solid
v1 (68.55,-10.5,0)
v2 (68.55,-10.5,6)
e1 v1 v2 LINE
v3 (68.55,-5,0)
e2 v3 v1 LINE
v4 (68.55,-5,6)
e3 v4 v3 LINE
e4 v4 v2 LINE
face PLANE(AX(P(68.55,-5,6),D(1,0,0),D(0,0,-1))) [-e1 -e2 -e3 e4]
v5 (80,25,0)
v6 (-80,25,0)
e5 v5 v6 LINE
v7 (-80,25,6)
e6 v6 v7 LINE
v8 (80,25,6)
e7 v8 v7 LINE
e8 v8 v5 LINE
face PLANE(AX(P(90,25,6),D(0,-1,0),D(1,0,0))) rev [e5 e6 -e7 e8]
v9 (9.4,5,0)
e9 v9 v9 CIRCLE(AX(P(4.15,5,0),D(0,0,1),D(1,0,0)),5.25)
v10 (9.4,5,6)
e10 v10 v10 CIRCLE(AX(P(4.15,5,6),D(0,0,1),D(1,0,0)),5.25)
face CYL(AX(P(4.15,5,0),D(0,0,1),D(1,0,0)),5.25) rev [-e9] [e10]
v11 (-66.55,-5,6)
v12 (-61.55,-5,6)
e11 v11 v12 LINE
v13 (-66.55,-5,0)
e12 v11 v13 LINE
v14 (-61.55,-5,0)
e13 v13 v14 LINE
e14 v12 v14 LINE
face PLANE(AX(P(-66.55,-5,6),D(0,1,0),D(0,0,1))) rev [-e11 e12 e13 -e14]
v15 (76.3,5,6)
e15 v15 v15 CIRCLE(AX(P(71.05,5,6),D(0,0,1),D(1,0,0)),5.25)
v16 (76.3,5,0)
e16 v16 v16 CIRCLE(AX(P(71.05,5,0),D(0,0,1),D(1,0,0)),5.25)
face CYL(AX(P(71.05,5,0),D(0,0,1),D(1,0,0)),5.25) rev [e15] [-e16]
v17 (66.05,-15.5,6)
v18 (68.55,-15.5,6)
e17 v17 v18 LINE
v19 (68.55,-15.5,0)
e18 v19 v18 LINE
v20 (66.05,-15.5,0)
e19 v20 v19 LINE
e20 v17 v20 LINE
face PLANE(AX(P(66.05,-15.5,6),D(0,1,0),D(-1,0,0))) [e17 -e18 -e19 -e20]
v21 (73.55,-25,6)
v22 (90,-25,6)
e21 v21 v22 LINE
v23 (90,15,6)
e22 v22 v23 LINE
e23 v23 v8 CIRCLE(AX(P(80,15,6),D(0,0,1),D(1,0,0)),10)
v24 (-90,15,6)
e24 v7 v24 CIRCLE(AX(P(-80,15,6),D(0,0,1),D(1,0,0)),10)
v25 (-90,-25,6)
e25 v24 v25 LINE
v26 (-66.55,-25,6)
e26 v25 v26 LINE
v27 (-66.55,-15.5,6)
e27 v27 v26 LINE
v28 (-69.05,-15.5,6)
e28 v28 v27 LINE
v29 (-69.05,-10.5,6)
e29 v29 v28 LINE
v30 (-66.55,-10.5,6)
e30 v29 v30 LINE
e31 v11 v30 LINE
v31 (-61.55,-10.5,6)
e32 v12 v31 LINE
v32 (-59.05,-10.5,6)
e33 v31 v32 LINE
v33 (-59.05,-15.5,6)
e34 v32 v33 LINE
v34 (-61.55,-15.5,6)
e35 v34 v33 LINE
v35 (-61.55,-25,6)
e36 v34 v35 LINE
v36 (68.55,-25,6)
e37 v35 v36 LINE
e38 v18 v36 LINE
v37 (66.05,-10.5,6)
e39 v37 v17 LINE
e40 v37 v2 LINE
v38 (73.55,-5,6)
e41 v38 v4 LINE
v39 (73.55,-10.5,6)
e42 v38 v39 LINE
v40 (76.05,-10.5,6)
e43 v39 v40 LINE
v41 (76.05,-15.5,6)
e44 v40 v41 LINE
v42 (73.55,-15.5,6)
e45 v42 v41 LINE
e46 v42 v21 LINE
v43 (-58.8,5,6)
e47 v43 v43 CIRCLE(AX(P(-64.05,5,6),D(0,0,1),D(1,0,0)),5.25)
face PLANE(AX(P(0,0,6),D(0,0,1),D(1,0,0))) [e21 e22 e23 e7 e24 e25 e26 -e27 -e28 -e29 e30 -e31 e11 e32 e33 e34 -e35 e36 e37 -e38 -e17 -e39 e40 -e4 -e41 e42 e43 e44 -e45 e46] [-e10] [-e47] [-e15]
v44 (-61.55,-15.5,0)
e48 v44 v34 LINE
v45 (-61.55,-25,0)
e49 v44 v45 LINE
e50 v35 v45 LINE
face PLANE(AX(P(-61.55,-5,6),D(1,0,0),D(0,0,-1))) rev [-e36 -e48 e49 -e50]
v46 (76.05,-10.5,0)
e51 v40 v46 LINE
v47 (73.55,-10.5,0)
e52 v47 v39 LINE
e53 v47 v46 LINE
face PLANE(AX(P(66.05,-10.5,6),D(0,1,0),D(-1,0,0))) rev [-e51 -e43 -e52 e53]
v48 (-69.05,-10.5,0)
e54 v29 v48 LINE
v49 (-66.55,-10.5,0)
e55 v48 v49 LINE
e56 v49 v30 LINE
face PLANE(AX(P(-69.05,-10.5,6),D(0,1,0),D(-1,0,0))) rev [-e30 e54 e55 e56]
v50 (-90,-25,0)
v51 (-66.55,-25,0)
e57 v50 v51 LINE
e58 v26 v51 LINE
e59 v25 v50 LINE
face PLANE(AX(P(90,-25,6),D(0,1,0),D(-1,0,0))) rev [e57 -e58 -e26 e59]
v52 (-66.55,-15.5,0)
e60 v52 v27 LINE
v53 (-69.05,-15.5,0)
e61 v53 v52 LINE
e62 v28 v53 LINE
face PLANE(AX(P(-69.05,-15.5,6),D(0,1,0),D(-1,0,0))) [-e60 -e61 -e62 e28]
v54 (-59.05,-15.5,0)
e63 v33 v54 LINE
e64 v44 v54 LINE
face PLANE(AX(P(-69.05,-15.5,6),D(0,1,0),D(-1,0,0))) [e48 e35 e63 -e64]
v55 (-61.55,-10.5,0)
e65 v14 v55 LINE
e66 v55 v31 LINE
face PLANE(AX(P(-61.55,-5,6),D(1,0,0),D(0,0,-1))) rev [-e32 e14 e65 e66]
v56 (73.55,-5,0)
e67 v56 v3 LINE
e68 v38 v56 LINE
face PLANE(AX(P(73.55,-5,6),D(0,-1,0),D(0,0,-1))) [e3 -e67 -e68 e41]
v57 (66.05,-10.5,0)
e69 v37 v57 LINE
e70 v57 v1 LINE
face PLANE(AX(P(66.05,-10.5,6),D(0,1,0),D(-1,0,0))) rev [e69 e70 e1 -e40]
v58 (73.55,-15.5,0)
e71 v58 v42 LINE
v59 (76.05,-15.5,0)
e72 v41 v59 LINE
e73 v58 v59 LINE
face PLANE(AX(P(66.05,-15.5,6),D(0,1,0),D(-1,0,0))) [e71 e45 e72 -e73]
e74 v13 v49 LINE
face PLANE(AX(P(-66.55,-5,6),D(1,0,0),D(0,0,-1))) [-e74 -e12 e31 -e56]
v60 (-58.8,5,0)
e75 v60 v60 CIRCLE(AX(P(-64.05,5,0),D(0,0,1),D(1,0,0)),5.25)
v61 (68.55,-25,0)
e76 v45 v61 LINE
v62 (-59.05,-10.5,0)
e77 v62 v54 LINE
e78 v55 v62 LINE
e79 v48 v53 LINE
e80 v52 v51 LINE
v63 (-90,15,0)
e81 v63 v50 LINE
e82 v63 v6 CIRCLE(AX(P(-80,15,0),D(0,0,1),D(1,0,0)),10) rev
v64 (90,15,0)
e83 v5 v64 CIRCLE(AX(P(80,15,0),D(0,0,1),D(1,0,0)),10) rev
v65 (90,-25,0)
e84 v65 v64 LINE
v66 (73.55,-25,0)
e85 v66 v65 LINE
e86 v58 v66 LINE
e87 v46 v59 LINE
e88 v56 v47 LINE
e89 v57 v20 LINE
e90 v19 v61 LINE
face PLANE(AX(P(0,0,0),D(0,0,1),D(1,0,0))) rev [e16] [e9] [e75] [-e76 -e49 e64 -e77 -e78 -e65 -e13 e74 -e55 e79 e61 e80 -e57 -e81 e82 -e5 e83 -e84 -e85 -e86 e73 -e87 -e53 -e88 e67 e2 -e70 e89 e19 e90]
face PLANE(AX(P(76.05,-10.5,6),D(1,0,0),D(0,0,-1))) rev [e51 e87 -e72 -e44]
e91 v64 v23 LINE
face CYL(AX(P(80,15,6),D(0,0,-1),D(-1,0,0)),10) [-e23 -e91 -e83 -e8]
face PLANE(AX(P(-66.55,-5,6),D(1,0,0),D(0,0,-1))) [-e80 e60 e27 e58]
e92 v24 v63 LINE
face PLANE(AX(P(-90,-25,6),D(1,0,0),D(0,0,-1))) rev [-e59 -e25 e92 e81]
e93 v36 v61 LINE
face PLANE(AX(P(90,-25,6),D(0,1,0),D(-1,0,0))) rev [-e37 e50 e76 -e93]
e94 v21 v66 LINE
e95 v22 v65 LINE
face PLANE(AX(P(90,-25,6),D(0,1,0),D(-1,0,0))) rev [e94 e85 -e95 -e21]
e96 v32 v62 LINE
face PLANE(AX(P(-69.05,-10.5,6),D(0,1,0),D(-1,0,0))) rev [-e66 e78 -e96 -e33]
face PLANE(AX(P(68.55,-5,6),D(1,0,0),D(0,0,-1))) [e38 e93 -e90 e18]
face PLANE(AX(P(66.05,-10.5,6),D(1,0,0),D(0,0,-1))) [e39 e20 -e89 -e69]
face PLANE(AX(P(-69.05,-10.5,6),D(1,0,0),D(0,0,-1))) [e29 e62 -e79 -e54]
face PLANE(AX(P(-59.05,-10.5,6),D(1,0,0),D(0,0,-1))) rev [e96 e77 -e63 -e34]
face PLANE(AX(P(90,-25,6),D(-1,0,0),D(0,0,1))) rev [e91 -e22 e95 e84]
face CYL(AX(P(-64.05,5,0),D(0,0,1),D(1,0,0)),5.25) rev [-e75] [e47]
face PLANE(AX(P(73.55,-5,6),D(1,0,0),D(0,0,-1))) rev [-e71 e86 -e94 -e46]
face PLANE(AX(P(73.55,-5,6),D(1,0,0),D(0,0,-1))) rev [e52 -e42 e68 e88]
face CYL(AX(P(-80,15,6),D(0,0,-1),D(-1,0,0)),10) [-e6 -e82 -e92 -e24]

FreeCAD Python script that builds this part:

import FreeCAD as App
import Part
import Sketcher

V = App.Vector
Q = App.Units.Quantity


def edges_at(feature, points):
    """Names of the edges that pass closest to the given points."""
    edges = feature.Shape.Edges
    near = lambda p: min(range(len(edges)), key=lambda i: edges[i].distToShape(Part.Vertex(*p))[0])
    return sorted({f"Edge{near(p) + 1}" for p in points})

doc = App.newDocument("Part")
body = doc.addObject("PartDesign::Body", "Body")

# Sketch on XY plane
sketch1 = body.newObject("Sketcher::SketchObject", "Sketch")
sketch1.AttachmentSupport = (doc.getObject("XY_Plane"), [""])
sketch1.MapMode = "FlatFace"
sketch1.addGeometry(Part.LineSegment(V(-90, 25, 0), V(-90, -25, 0)), False)
sketch1.addGeometry(Part.LineSegment(V(-90, -25, 0), V(90, -25, 0)), False)
sketch1.addGeometry(Part.LineSegment(V(90, -25, 0), V(90, 25, 0)), False)
sketch1.addGeometry(Part.LineSegment(V(90, 25, 0), V(-90, 25, 0)), False)
sketch1.addConstraint(Sketcher.Constraint("Coincident", 0, 2, 1, 1))
sketch1.addConstraint(Sketcher.Constraint("Coincident", 1, 2, 2, 1))
sketch1.addConstraint(Sketcher.Constraint("Coincident", 2, 2, 3, 1))
sketch1.addConstraint(Sketcher.Constraint("Coincident", 3, 2, 0, 1))
sketch1.addConstraint(Sketcher.Constraint("Vertical", 0))
sketch1.addConstraint(Sketcher.Constraint("Horizontal", 1))
sketch1.addConstraint(Sketcher.Constraint("Vertical", 2))
sketch1.addConstraint(Sketcher.Constraint("Horizontal", 3))
sketch1.addConstraint(Sketcher.Constraint("Symmetric", 0, 2, 2, 2, -1, 1))
sketch1.addConstraint(Sketcher.Constraint("DistanceX", 1, 1, 1, 2, Q("180 mm")))
sketch1.addConstraint(Sketcher.Constraint("DistanceY", 0, 2, 0, 1, Q("50 mm")))
pad1 = body.newObject("PartDesign::Pad", "Pad")
pad1.Profile = sketch1
pad1.Length = 6

# Sketch on XY plane
sketch2 = body.newObject("Sketcher::SketchObject", "Sketch001")
sketch2.AttachmentSupport = (doc.getObject("XY_Plane"), [""])
sketch2.MapMode = "FlatFace"
sketch2.AttachmentOffset = App.Placement(V(0, 0, 6), App.Rotation())
sketch2.addGeometry(Part.Circle(V(-64, 5, 0), V(0, 0, 1), 5), False)
sketch2.addGeometry(Part.Circle(V(4, 5, 0), V(0, 0, 1), 5), False)
sketch2.addGeometry(Part.Circle(V(71, 5, 0), V(0, 0, 1), 5), False)
sketch2.addConstraint(Sketcher.Constraint("Equal", 0, 1))
sketch2.addConstraint(Sketcher.Constraint("Equal", 1, 2))
sketch2.addConstraint(Sketcher.Constraint("Horizontal", 0, 3, 1, 3))
sketch2.addConstraint(Sketcher.Constraint("Horizontal", 1, 3, 2, 3))
sketch2.addConstraint(Sketcher.Constraint("Diameter", 0, Q("10.5 mm")))
sketch2.addConstraint(Sketcher.Constraint("DistanceY", -1, 1, 0, 3, Q("5 mm")))
sketch2.addConstraint(Sketcher.Constraint("DistanceX", 0, 3, 1, 3, Q("68.2 mm")))
sketch2.addConstraint(Sketcher.Constraint("DistanceX", 1, 3, 2, 3, Q("66.9 mm")))
sketch2.addConstraint(Sketcher.Constraint("DistanceX", 0, 3, -1, 1, Q("64.05 mm")))
pocket1 = body.newObject("PartDesign::Pocket", "Pocket")
pocket1.Profile = sketch2
pocket1.Type = "ThroughAll"
doc.recompute()

fillet = body.newObject("PartDesign::Fillet", "Fillet")
fillet.Base = (pocket1, edges_at(pocket1, [(-90, 25, 3), (90, 25, 3)]))
fillet.Radius = 10

# Sketch on XY plane
sketch3 = body.newObject("Sketcher::SketchObject", "Sketch002")
sketch3.AttachmentSupport = (doc.getObject("XY_Plane"), [""])
sketch3.MapMode = "FlatFace"
sketch3.addGeometry(Part.LineSegment(V(73.5, -15.5, 0), V(73.5, -25, 0)), False)
sketch3.addGeometry(Part.LineSegment(V(73.5, -25, 0), V(68.5, -25, 0)), False)
sketch3.addGeometry(Part.LineSegment(V(68.5, -25, 0), V(68.5, -15.5, 0)), False)
sketch3.addGeometry(Part.LineSegment(V(68.5, -15.5, 0), V(66, -15.5, 0)), False)
sketch3.addGeometry(Part.LineSegment(V(66, -15.5, 0), V(66, -10.5, 0)), False)
sketch3.addGeometry(Part.LineSegment(V(66, -10.5, 0), V(68.5, -10.5, 0)), False)
sketch3.addGeometry(Part.LineSegment(V(68.5, -10.5, 0), V(68.5, -5, 0)), False)
sketch3.addGeometry(Part.LineSegment(V(68.5, -5, 0), V(73.5, -5, 0)), False)
sketch3.addGeometry(Part.LineSegment(V(73.5, -5, 0), V(73.5, -10.5, 0)), False)
sketch3.addGeometry(Part.LineSegment(V(73.5, -10.5, 0), V(76, -10.5, 0)), False)
sketch3.addGeometry(Part.LineSegment(V(76, -10.5, 0), V(76, -15.5, 0)), False)
sketch3.addGeometry(Part.LineSegment(V(76, -15.5, 0), V(73.5, -15.5, 0)), False)
sketch3.addGeometry(Part.LineSegment(V(-61.5, -15.5, 0), V(-61.5, -25, 0)), False)
sketch3.addGeometry(Part.LineSegment(V(-61.5, -25, 0), V(-66.5, -25, 0)), False)
sketch3.addGeometry(Part.LineSegment(V(-66.5, -25, 0), V(-66.5, -15.5, 0)), False)
sketch3.addGeometry(Part.LineSegment(V(-66.5, -15.5, 0), V(-69, -15.5, 0)), False)
sketch3.addGeometry(Part.LineSegment(V(-69, -15.5, 0), V(-69, -10.5, 0)), False)
sketch3.addGeometry(Part.LineSegment(V(-69, -10.5, 0), V(-66.5, -10.5, 0)), False)
sketch3.addGeometry(Part.LineSegment(V(-66.5, -10.5, 0), V(-66.5, -5, 0)), False)
sketch3.addGeometry(Part.LineSegment(V(-66.5, -5, 0), V(-61.5, -5, 0)), False)
sketch3.addGeometry(Part.LineSegment(V(-61.5, -5, 0), V(-61.5, -10.5, 0)), False)
sketch3.addGeometry(Part.LineSegment(V(-61.5, -10.5, 0), V(-59, -10.5, 0)), False)
sketch3.addGeometry(Part.LineSegment(V(-59, -10.5, 0), V(-59, -15.5, 0)), False)
sketch3.addGeometry(Part.LineSegment(V(-59, -15.5, 0), V(-61.5, -15.5, 0)), False)
sketch3.addConstraint(Sketcher.Constraint("Coincident", 0, 2, 1, 1))
sketch3.addConstraint(Sketcher.Constraint("Coincident", 1, 2, 2, 1))
sketch3.addConstraint(Sketcher.Constraint("Coincident", 2, 2, 3, 1))
sketch3.addConstraint(Sketcher.Constraint("Coincident", 3, 2, 4, 1))
sketch3.addConstraint(Sketcher.Constraint("Coincident", 4, 2, 5, 1))
sketch3.addConstraint(Sketcher.Constraint("Coincident", 5, 2, 6, 1))
sketch3.addConstraint(Sketcher.Constraint("Coincident", 6, 2, 7, 1))
sketch3.addConstraint(Sketcher.Constraint("Coincident", 7, 2, 8, 1))
sketch3.addConstraint(Sketcher.Constraint("Coincident", 8, 2, 9, 1))
sketch3.addConstraint(Sketcher.Constraint("Coincident", 9, 2, 10, 1))
sketch3.addConstraint(Sketcher.Constraint("Coincident", 10, 2, 11, 1))
sketch3.addConstraint(Sketcher.Constraint("Coincident", 11, 2, 0, 1))
sketch3.addConstraint(Sketcher.Constraint("Coincident", 12, 2, 13, 1))
sketch3.addConstraint(Sketcher.Constraint("Coincident", 13, 2, 14, 1))
sketch3.addConstraint(Sketcher.Constraint("Coincident", 14, 2, 15, 1))
sketch3.addConstraint(Sketcher.Constraint("Coincident", 15, 2, 16, 1))
sketch3.addConstraint(Sketcher.Constraint("Coincident", 16, 2, 17, 1))
sketch3.addConstraint(Sketcher.Constraint("Coincident", 17, 2, 18, 1))
sketch3.addConstraint(Sketcher.Constraint("Coincident", 18, 2, 19, 1))
sketch3.addConstraint(Sketcher.Constraint("Coincident", 19, 2, 20, 1))
sketch3.addConstraint(Sketcher.Constraint("Coincident", 20, 2, 21, 1))
sketch3.addConstraint(Sketcher.Constraint("Coincident", 21, 2, 22, 1))
sketch3.addConstraint(Sketcher.Constraint("Coincident", 22, 2, 23, 1))
sketch3.addConstraint(Sketcher.Constraint("Coincident", 23, 2, 12, 1))
sketch3.addConstraint(Sketcher.Constraint("Vertical", 0))
sketch3.addConstraint(Sketcher.Constraint("Horizontal", 1))
sketch3.addConstraint(Sketcher.Constraint("Vertical", 2))
sketch3.addConstraint(Sketcher.Constraint("Horizontal", 3))
sketch3.addConstraint(Sketcher.Constraint("Vertical", 4))
sketch3.addConstraint(Sketcher.Constraint("Horizontal", 5))
sketch3.addConstraint(Sketcher.Constraint("Vertical", 6))
sketch3.addConstraint(Sketcher.Constraint("Horizontal", 7))
sketch3.addConstraint(Sketcher.Constraint("Vertical", 8))
sketch3.addConstraint(Sketcher.Constraint("Horizontal", 9))
sketch3.addConstraint(Sketcher.Constraint("Vertical", 10))
sketch3.addConstraint(Sketcher.Constraint("Horizontal", 11))
sketch3.addConstraint(Sketcher.Constraint("Vertical", 12))
sketch3.addConstraint(Sketcher.Constraint("Horizontal", 13))
sketch3.addConstraint(Sketcher.Constraint("Vertical", 14))
sketch3.addConstraint(Sketcher.Constraint("Horizontal", 15))
sketch3.addConstraint(Sketcher.Constraint("Vertical", 16))
sketch3.addConstraint(Sketcher.Constraint("Horizontal", 17))
sketch3.addConstraint(Sketcher.Constraint("Vertical", 18))
sketch3.addConstraint(Sketcher.Constraint("Horizontal", 19))
sketch3.addConstraint(Sketcher.Constraint("Vertical", 20))
sketch3.addConstraint(Sketcher.Constraint("Horizontal", 21))
sketch3.addConstraint(Sketcher.Constraint("Vertical", 22))
sketch3.addConstraint(Sketcher.Constraint("Horizontal", 23))
sketch3.addConstraint(Sketcher.Constraint("Horizontal", 5, 2, 8, 2))
sketch3.addConstraint(Sketcher.Constraint("Horizontal", 3, 2, 10, 2))
sketch3.addConstraint(Sketcher.Constraint("Horizontal", 1, 2, 12, 2))
sketch3.addConstraint(Sketcher.Constraint("Horizontal", 11, 2, 14, 2))
sketch3.addConstraint(Sketcher.Constraint("Horizontal", 9, 2, 16, 2))
sketch3.addConstraint(Sketcher.Constraint("Horizontal", 7, 2, 18, 2))
sketch3.addConstraint(Sketcher.Constraint("Horizontal", 17, 2, 20, 2))
sketch3.addConstraint(Sketcher.Constraint("Horizontal", 15, 2, 22, 2))
sketch3.addConstraint(Sketcher.Constraint("Vertical", 2, 2, 5, 2))
sketch3.addConstraint(Sketcher.Constraint("Vertical", 0, 2, 7, 2))
sketch3.addConstraint(Sketcher.Constraint("Vertical", 14, 2, 17, 2))
sketch3.addConstraint(Sketcher.Constraint("Vertical", 12, 2, 19, 2))
sketch3.addConstraint(Sketcher.Constraint("Equal", 5, 9))
sketch3.addConstraint(Sketcher.Constraint("Equal", 7, 13))
sketch3.addConstraint(Sketcher.Constraint("Equal", 11, 15))
sketch3.addConstraint(Sketcher.Constraint("Equal", 17, 21))
sketch3.addConstraint(Sketcher.Constraint("Equal", 19, 4))
sketch3.addConstraint(Sketcher.Constraint("DistanceX", 1, 2, 1, 1, Q("5 mm")))
sketch3.addConstraint(Sketcher.Constraint("DistanceX", 3, 2, 3, 1, Q("2.5 mm")))
sketch3.addConstraint(Sketcher.Constraint("DistanceY", 0, 2, 0, 1, Q("9.5 mm")))
sketch3.addConstraint(Sketcher.Constraint("DistanceY", 6, 1, 6, 2, Q("5.5 mm")))
sketch3.addConstraint(Sketcher.Constraint("DistanceY", 0, 2, -1, 1, Q("25 mm")))
sketch3.addConstraint(Sketcher.Constraint("DistanceX", 12, 2, 3, 2, Q("127.6 mm")))
sketch3.addConstraint(Sketcher.Constraint("DistanceX", -1, 1, 0, 2, Q("73.55 mm")))
pocket2 = body.newObject("PartDesign::Pocket", "Pocket001")
pocket2.Profile = sketch3
pocket2.Type = "ThroughAll"
pocket2.Reversed = True

doc.recompute()
